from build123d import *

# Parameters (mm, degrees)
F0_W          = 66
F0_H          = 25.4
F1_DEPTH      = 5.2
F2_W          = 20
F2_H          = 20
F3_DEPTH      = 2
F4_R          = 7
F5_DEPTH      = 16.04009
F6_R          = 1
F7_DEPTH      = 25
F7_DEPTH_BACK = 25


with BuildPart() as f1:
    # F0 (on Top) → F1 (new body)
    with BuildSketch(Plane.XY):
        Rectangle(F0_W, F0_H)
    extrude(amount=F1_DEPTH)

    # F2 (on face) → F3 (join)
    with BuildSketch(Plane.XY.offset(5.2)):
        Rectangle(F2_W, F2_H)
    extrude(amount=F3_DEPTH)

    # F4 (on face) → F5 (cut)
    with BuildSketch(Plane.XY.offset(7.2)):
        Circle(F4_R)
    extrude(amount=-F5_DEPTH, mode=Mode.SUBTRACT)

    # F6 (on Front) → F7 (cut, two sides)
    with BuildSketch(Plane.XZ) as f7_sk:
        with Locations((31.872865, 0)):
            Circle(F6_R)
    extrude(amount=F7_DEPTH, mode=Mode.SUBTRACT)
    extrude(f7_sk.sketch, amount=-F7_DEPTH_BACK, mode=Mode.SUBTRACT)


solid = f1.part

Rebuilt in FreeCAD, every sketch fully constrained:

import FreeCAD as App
import Part
import Sketcher


def add_polygon(sketch, points):
    """Adds a closed chain of lines whose ends are joined by coincident constraints."""
    first, n = sketch.GeometryCount, len(points)
    for a, b in zip(points, points[1:] + points[:1]):
        sketch.addGeometry(Part.LineSegment(App.Vector(*a, 0), App.Vector(*b, 0)), False)
    for i in range(n):
        sketch.addConstraint(Sketcher.Constraint("Coincident", first + i, 2, first + (i + 1) % n, 1))

doc = App.newDocument("Part")
body = doc.addObject("PartDesign::Body", "Body")

sketch1 = body.newObject("Sketcher::SketchObject", "Sketch")
sketch1.AttachmentSupport = (doc.getObject("XY_Plane"), [""])
sketch1.MapMode = "FlatFace"
add_polygon(sketch1, [(-33, 13), (-33, -13), (33, -13), (33, 13)])
sketch1.addConstraint([
    Sketcher.Constraint("Vertical", 0),
    Sketcher.Constraint("Horizontal", 1),
    Sketcher.Constraint("Vertical", 2),
    Sketcher.Constraint("Horizontal", 3),
    Sketcher.Constraint("Symmetric", 0, 2, 2, 2, -1, 1),
    Sketcher.Constraint("DistanceX", 1, 1, 1, 2, 66.0),
    Sketcher.Constraint("DistanceY", 0, 2, 0, 1, 25.4),
])
pad1 = body.newObject("PartDesign::Pad", "Pad")
pad1.Profile = sketch1
pad1.Length = 5.2

sketch2 = body.newObject("Sketcher::SketchObject", "Sketch001")
sketch2.AttachmentSupport = (doc.getObject("XY_Plane"), [""])
sketch2.MapMode = "FlatFace"
sketch2.AttachmentOffset = App.Placement(App.Vector(0, 0, 5.2), App.Rotation())
add_polygon(sketch2, [(-10, 10), (-10, -10), (10, -10), (10, 10)])
sketch2.addConstraint([
    Sketcher.Constraint("Vertical", 0),
    Sketcher.Constraint("Horizontal", 1),
    Sketcher.Constraint("Vertical", 2),
    Sketcher.Constraint("Horizontal", 3),
    Sketcher.Constraint("Symmetric", 0, 2, 2, 2, -1, 1),
    Sketcher.Constraint("Equal", 3, 0),
    Sketcher.Constraint("DistanceX", 1, 1, 1, 2, 20.0),
])
pad2 = body.newObject("PartDesign::Pad", "Pad001")
pad2.Profile = sketch2
pad2.Length = 2

sketch3 = body.newObject("Sketcher::SketchObject", "Sketch002")
sketch3.AttachmentSupport = (doc.getObject("XY_Plane"), [""])
sketch3.MapMode = "FlatFace"
sketch3.AttachmentOffset = App.Placement(App.Vector(0, 0, 7.2), App.Rotation())
sketch3.addGeometry(Part.Circle(App.Vector(0, 0, 0), App.Vector(0, 0, 1), 7), False)
sketch3.addConstraint([
    Sketcher.Constraint("Coincident", 0, 3, -1, 1),
    Sketcher.Constraint("Diameter", 0, 14.0),
])
pocket1 = body.newObject("PartDesign::Pocket", "Pocket")
pocket1.Profile = sketch3
pocket1.Length = 16.04009

sketch4 = body.newObject("Sketcher::SketchObject", "Sketch003")
sketch4.AttachmentSupport = (doc.getObject("XZ_Plane"), [""])
sketch4.MapMode = "FlatFace"
sketch4.addGeometry(Part.Circle(App.Vector(31.9, 0, 0), App.Vector(0, 0, 1), 1), False)
sketch4.addConstraint([
    Sketcher.Constraint("PointOnObject", 0, 3, -1),
    Sketcher.Constraint("Diameter", 0, 2.0),
    Sketcher.Constraint("DistanceX", -1, 1, 0, 3, 31.872865),
])
pocket2 = body.newObject("PartDesign::Pocket", "Pocket001")
pocket2.Profile = sketch4
pocket2.Type = "ThroughAll"
pocket2.Midplane = True

doc.recompute()
